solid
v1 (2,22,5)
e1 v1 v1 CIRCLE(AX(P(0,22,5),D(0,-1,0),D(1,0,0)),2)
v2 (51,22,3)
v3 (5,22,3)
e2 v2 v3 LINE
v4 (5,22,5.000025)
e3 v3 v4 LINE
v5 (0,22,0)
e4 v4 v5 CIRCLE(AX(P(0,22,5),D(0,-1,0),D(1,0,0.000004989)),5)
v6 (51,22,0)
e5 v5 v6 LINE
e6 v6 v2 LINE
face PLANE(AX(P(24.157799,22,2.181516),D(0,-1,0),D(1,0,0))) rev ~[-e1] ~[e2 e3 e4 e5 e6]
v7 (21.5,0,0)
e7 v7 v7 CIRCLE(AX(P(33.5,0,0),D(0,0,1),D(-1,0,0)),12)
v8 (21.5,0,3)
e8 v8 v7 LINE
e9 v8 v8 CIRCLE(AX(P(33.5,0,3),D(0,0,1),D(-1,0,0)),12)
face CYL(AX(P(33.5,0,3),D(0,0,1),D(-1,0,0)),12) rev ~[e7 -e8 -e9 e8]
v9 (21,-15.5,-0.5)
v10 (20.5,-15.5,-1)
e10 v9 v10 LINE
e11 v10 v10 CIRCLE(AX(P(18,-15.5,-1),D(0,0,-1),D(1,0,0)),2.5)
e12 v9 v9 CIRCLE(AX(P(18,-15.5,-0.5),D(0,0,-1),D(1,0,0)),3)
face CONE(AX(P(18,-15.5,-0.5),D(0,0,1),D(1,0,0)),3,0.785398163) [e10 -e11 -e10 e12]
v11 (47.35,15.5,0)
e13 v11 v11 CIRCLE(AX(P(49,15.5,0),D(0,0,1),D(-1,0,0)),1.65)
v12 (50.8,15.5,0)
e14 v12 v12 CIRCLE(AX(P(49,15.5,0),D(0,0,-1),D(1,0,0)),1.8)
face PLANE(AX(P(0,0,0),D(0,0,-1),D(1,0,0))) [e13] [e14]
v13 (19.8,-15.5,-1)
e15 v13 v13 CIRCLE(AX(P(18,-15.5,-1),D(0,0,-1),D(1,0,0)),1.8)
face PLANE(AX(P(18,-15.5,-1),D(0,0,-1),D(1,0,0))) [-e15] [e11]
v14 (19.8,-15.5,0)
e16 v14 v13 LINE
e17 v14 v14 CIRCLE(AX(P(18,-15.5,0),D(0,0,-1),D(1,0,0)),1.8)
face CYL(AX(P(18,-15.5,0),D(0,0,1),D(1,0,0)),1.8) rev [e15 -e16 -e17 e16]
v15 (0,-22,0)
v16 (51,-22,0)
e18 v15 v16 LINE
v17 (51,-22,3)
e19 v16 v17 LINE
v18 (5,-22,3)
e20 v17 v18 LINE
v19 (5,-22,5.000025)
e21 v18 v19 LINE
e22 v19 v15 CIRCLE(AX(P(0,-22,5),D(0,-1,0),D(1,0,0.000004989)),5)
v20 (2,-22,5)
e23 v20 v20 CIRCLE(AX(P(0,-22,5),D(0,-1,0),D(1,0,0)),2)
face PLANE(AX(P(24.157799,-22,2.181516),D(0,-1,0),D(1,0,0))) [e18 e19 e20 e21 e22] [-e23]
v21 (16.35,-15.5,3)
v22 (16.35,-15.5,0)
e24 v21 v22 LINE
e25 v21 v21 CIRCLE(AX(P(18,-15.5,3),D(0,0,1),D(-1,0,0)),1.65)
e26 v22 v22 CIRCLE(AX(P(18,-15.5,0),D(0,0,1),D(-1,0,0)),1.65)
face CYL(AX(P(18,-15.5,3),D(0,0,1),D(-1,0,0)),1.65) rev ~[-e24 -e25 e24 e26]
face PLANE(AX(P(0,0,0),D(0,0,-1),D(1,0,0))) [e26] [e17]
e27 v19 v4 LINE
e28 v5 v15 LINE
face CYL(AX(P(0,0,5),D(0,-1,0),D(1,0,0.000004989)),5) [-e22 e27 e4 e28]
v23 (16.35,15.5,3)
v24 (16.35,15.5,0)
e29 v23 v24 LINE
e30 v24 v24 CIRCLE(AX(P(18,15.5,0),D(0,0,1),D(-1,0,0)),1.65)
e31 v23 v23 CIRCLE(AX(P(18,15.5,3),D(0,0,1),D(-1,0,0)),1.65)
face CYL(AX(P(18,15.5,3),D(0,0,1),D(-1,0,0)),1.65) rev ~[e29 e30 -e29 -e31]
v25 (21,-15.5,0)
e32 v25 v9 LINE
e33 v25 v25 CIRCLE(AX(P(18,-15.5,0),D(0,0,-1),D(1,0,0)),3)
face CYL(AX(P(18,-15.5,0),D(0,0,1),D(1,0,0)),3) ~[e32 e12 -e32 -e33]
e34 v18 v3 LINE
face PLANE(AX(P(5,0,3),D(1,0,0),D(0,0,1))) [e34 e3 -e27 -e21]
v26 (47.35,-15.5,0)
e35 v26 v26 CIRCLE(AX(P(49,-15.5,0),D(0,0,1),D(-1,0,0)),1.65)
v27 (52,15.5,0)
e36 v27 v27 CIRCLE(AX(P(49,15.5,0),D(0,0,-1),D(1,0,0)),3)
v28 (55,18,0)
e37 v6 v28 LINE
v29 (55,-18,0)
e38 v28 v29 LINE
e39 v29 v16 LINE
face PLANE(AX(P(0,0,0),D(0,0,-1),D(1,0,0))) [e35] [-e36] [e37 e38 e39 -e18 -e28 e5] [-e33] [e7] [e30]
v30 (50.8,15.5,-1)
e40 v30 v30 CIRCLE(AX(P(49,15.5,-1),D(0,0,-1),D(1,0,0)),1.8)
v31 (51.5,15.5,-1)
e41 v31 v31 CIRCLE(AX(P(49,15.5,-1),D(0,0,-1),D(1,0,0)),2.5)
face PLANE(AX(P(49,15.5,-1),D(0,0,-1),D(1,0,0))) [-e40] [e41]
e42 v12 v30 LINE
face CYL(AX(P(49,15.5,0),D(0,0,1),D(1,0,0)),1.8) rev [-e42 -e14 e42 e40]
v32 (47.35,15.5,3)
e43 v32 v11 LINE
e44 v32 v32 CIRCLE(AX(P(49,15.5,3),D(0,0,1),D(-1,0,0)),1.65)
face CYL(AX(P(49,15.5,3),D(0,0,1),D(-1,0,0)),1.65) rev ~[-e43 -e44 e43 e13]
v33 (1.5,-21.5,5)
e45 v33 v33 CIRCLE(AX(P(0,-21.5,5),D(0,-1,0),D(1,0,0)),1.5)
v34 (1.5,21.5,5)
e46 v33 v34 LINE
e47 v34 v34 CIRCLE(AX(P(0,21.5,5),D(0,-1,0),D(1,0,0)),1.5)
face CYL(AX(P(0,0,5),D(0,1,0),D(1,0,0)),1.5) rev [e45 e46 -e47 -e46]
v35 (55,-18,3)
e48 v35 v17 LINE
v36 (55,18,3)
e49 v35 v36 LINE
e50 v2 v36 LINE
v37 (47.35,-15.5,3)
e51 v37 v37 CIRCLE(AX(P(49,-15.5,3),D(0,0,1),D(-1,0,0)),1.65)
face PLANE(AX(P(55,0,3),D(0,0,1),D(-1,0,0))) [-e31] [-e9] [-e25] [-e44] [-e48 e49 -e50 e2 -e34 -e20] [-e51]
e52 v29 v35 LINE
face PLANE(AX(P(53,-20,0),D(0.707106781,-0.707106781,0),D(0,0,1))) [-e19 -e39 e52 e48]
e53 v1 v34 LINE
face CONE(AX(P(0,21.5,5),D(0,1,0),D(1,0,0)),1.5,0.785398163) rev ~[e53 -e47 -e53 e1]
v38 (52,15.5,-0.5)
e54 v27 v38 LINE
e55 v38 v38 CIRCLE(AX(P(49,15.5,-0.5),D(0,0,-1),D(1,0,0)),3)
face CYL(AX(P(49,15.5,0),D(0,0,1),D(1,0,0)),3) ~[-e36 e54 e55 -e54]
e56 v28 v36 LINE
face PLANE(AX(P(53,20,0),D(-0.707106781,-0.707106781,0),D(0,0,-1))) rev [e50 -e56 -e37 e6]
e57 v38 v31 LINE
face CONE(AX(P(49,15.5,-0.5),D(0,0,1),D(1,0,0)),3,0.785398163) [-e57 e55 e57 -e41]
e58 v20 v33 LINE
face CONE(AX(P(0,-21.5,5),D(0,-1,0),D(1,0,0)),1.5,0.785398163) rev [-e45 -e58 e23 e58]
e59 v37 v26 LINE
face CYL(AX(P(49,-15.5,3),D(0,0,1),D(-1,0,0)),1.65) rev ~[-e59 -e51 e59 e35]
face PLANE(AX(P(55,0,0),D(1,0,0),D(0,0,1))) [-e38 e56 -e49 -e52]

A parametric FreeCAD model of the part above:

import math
import FreeCAD as App
import Part
import Sketcher
from FreeCAD import Vector


def edges_at(feature, points):
    """Names of the edges that pass closest to the given points."""
    edges = feature.Shape.Edges
    near = lambda p: min(range(len(edges)), key=lambda i: edges[i].distToShape(Part.Vertex(*p))[0])
    return sorted({f"Edge{near(p) + 1}" for p in points})

doc = App.newDocument("Part")
params = doc.addObject("Spreadsheet::Sheet", "Params")
for row, (alias, value) in enumerate([
    ("sketch1_diameter", "3 mm"),
    ("sketch1_radius", "5 mm"),
    ("sketch1_width", "55 mm"),
    ("sketch1_height", "3 mm"),
    ("pad1_length", "44 mm"),
    ("sketch2_diameter", "24 mm"),
    ("sketch2_diameter2", "3.3 mm"),
    ("chamfer_size", "0.5 mm"),
    ("chamfer2_size", "4 mm"),
    ("sketch3_diameter", "6 mm"),
    ("sketch3_diameter2", "3.6 mm"),
    ("pad2_length", "1 mm"),
    ("chamfer3_size", "0.5 mm"),
], start=1):
    params.set(f"A{row}", alias)
    params.set(f"B{row}", "=" + value)
    params.setAlias(f"B{row}", alias)

body = doc.addObject("PartDesign::Body", "Body")

# Sketch on XZ plane
sketch1 = body.newObject("Sketcher::SketchObject", "Sketch")
sketch1.AttachmentSupport = (doc.getObject("XZ_Plane"), [""])
sketch1.MapMode = "FlatFace"
sketch1.addGeometry([
    Part.ArcOfCircle(Part.Circle(Vector(0, 5, 0), Vector(0, 0, 1), 5), math.radians(0), math.radians(270)),  # 0
    Part.LineSegment(Vector(0, 0, 0), Vector(55, 0, 0)),  # 1
    Part.LineSegment(Vector(55, 0, 0), Vector(55, 3, 0)),  # 2
    Part.LineSegment(Vector(55, 3, 0), Vector(5, 3, 0)),  # 3
    Part.LineSegment(Vector(5, 3, 0), Vector(5, 5, 0)),  # 4
    Part.Circle(Vector(0, 5, 0), Vector(0, 0, 1), 1.5),  # 5
], False)
sketch1.addConstraint([
    Sketcher.Constraint("Tangent", 0, 2, 1, 1),
    Sketcher.Constraint("Coincident", 1, 2, 2, 1),
    Sketcher.Constraint("Coincident", 2, 2, 3, 1),
    Sketcher.Constraint("Coincident", 3, 2, 4, 1),
    Sketcher.Constraint("Coincident", 4, 2, 0, 1),
    Sketcher.Constraint("Horizontal", 1),
    Sketcher.Constraint("Vertical", 2),
    Sketcher.Constraint("Horizontal", 3),
    Sketcher.Constraint("Vertical", 4),
    Sketcher.Constraint("Coincident", 0, 2, -1, 1),
    Sketcher.Constraint("Coincident", 5, 3, 0, 3),
    Sketcher.Constraint("Diameter", 5, 3.0),
    Sketcher.Constraint("Radius", 0, 5.0),
    Sketcher.Constraint("DistanceX", 1, 1, 1, 2, 55.0),
    Sketcher.Constraint("DistanceY", 2, 1, 2, 2, 3.0),
    Sketcher.Constraint("DistanceY", 4, 1, 4, 2, 2.000025),
])
sketch1.setExpression("Constraints[11]", "Params.sketch1_diameter")
sketch1.setExpression("Constraints[12]", "Params.sketch1_radius")
sketch1.setExpression("Constraints[13]", "Params.sketch1_width")
sketch1.setExpression("Constraints[14]", "Params.sketch1_height")
pad1 = body.newObject("PartDesign::Pad", "Pad")
pad1.Profile = sketch1
pad1.setExpression("Length", "Params.pad1_length")
pad1.Midplane = True

# Sketch on XY plane
sketch2 = body.newObject("Sketcher::SketchObject", "Sketch001")
sketch2.AttachmentSupport = (doc.getObject("XY_Plane"), [""])
sketch2.MapMode = "FlatFace"
sketch2.AttachmentOffset = App.Placement(Vector(0, 0, 3), App.Rotation())
sketch2.addGeometry([
    Part.Circle(Vector(33.5, 0, 0), Vector(0, 0, 1), 12),  # 0
    Part.Circle(Vector(49, -15.5, 0), Vector(0, 0, 1), 1.6),  # 1
    Part.Circle(Vector(18, -15.5, 0), Vector(0, 0, 1), 1.6),  # 2
    Part.Circle(Vector(18, 15.5, 0), Vector(0, 0, 1), 1.6),  # 3
    Part.Circle(Vector(49, 15.5, 0), Vector(0, 0, 1), 1.6),  # 4
], False)
sketch2.addConstraint([
    Sketcher.Constraint("Equal", 1, 2),
    Sketcher.Constraint("Equal", 2, 3),
    Sketcher.Constraint("Equal", 3, 4),
    Sketcher.Constraint("Symmetric", 2, 3, 3, 3, -1),
    Sketcher.Constraint("Symmetric", 1, 3, 4, 3, -1),
    Sketcher.Constraint("PointOnObject", 0, 3, -1),
    Sketcher.Constraint("Horizontal", 1, 3, 2, 3),
    Sketcher.Constraint("Diameter", 0, 24.0),
    Sketcher.Constraint("Diameter", 1, 3.3),
    Sketcher.Constraint("DistanceX", -1, 1, 1, 3, 49.0),
    Sketcher.Constraint("DistanceX", -1, 1, 2, 3, 18.0),
    Sketcher.Constraint("DistanceY", 2, 3, 3, 3, 31.0),
    Sketcher.Constraint("DistanceX", -1, 1, 0, 3, 33.5),
])
sketch2.setExpression("Constraints[7]", "Params.sketch2_diameter")
sketch2.setExpression("Constraints[8]", "Params.sketch2_diameter2")
pocket1 = body.newObject("PartDesign::Pocket", "Pocket")
pocket1.Profile = sketch2
pocket1.Type = "ThroughAll"
doc.recompute()

chamfer = body.newObject("PartDesign::Chamfer", "Chamfer")
chamfer.Base = (pocket1, edges_at(pocket1, [(-1.5, -22, 5), (-1.5, 22, 5)]))
chamfer.setExpression("Size", "Params.chamfer_size")
doc.recompute()

chamfer2 = body.newObject("PartDesign::Chamfer", "Chamfer001")
chamfer2.Base = (chamfer, edges_at(chamfer, [(55, 22, 1.5), (55, -22, 1.5)]))
chamfer2.setExpression("Size", "Params.chamfer2_size")

# Sketch on XY plane
sketch3 = body.newObject("Sketcher::SketchObject", "Sketch002")
sketch3.AttachmentSupport = (doc.getObject("XY_Plane"), [""])
sketch3.MapMode = "FlatFace"
sketch3.addGeometry([
    Part.Circle(Vector(49, 15.5, 0), Vector(0, 0, 1), 3),
    Part.Circle(Vector(49, 15.5, 0), Vector(0, 0, 1), 1.8),
    Part.Circle(Vector(18, -15.5, 0), Vector(0, 0, 1), 3),
    Part.Circle(Vector(18, -15.5, 0), Vector(0, 0, 1), 1.8),
], False)
sketch3.addConstraint([
    Sketcher.Constraint("Coincident", 1, 3, 0, 3),
    Sketcher.Constraint("Coincident", 3, 3, 2, 3),
    Sketcher.Constraint("Equal", 0, 2),
    Sketcher.Constraint("Equal", 1, 3),
    Sketcher.Constraint("Diameter", 0, 6.0),
    Sketcher.Constraint("Diameter", 1, 3.6),
    Sketcher.Constraint("DistanceX", -1, 1, 0, 3, 49.0),
    Sketcher.Constraint("DistanceX", -1, 1, 2, 3, 18.0),
    Sketcher.Constraint("DistanceY", 2, 3, 0, 3, 31.0),
    Sketcher.Constraint("DistanceY", -1, 1, 0, 3, 15.5),
])
sketch3.setExpression("Constraints[4]", "Params.sketch3_diameter")
sketch3.setExpression("Constraints[5]", "Params.sketch3_diameter2")
pad2 = body.newObject("PartDesign::Pad", "Pad001")
pad2.Profile = sketch3
pad2.setExpression("Length", "Params.pad2_length")
pad2.Reversed = True
doc.recompute()

chamfer3 = body.newObject("PartDesign::Chamfer", "Chamfer002")
chamfer3.Base = (pad2, edges_at(pad2, [(46, 15.5, -1), (15, -15.5, -1)]))
chamfer3.setExpression("Size", "Params.chamfer3_size")

doc.recompute()
